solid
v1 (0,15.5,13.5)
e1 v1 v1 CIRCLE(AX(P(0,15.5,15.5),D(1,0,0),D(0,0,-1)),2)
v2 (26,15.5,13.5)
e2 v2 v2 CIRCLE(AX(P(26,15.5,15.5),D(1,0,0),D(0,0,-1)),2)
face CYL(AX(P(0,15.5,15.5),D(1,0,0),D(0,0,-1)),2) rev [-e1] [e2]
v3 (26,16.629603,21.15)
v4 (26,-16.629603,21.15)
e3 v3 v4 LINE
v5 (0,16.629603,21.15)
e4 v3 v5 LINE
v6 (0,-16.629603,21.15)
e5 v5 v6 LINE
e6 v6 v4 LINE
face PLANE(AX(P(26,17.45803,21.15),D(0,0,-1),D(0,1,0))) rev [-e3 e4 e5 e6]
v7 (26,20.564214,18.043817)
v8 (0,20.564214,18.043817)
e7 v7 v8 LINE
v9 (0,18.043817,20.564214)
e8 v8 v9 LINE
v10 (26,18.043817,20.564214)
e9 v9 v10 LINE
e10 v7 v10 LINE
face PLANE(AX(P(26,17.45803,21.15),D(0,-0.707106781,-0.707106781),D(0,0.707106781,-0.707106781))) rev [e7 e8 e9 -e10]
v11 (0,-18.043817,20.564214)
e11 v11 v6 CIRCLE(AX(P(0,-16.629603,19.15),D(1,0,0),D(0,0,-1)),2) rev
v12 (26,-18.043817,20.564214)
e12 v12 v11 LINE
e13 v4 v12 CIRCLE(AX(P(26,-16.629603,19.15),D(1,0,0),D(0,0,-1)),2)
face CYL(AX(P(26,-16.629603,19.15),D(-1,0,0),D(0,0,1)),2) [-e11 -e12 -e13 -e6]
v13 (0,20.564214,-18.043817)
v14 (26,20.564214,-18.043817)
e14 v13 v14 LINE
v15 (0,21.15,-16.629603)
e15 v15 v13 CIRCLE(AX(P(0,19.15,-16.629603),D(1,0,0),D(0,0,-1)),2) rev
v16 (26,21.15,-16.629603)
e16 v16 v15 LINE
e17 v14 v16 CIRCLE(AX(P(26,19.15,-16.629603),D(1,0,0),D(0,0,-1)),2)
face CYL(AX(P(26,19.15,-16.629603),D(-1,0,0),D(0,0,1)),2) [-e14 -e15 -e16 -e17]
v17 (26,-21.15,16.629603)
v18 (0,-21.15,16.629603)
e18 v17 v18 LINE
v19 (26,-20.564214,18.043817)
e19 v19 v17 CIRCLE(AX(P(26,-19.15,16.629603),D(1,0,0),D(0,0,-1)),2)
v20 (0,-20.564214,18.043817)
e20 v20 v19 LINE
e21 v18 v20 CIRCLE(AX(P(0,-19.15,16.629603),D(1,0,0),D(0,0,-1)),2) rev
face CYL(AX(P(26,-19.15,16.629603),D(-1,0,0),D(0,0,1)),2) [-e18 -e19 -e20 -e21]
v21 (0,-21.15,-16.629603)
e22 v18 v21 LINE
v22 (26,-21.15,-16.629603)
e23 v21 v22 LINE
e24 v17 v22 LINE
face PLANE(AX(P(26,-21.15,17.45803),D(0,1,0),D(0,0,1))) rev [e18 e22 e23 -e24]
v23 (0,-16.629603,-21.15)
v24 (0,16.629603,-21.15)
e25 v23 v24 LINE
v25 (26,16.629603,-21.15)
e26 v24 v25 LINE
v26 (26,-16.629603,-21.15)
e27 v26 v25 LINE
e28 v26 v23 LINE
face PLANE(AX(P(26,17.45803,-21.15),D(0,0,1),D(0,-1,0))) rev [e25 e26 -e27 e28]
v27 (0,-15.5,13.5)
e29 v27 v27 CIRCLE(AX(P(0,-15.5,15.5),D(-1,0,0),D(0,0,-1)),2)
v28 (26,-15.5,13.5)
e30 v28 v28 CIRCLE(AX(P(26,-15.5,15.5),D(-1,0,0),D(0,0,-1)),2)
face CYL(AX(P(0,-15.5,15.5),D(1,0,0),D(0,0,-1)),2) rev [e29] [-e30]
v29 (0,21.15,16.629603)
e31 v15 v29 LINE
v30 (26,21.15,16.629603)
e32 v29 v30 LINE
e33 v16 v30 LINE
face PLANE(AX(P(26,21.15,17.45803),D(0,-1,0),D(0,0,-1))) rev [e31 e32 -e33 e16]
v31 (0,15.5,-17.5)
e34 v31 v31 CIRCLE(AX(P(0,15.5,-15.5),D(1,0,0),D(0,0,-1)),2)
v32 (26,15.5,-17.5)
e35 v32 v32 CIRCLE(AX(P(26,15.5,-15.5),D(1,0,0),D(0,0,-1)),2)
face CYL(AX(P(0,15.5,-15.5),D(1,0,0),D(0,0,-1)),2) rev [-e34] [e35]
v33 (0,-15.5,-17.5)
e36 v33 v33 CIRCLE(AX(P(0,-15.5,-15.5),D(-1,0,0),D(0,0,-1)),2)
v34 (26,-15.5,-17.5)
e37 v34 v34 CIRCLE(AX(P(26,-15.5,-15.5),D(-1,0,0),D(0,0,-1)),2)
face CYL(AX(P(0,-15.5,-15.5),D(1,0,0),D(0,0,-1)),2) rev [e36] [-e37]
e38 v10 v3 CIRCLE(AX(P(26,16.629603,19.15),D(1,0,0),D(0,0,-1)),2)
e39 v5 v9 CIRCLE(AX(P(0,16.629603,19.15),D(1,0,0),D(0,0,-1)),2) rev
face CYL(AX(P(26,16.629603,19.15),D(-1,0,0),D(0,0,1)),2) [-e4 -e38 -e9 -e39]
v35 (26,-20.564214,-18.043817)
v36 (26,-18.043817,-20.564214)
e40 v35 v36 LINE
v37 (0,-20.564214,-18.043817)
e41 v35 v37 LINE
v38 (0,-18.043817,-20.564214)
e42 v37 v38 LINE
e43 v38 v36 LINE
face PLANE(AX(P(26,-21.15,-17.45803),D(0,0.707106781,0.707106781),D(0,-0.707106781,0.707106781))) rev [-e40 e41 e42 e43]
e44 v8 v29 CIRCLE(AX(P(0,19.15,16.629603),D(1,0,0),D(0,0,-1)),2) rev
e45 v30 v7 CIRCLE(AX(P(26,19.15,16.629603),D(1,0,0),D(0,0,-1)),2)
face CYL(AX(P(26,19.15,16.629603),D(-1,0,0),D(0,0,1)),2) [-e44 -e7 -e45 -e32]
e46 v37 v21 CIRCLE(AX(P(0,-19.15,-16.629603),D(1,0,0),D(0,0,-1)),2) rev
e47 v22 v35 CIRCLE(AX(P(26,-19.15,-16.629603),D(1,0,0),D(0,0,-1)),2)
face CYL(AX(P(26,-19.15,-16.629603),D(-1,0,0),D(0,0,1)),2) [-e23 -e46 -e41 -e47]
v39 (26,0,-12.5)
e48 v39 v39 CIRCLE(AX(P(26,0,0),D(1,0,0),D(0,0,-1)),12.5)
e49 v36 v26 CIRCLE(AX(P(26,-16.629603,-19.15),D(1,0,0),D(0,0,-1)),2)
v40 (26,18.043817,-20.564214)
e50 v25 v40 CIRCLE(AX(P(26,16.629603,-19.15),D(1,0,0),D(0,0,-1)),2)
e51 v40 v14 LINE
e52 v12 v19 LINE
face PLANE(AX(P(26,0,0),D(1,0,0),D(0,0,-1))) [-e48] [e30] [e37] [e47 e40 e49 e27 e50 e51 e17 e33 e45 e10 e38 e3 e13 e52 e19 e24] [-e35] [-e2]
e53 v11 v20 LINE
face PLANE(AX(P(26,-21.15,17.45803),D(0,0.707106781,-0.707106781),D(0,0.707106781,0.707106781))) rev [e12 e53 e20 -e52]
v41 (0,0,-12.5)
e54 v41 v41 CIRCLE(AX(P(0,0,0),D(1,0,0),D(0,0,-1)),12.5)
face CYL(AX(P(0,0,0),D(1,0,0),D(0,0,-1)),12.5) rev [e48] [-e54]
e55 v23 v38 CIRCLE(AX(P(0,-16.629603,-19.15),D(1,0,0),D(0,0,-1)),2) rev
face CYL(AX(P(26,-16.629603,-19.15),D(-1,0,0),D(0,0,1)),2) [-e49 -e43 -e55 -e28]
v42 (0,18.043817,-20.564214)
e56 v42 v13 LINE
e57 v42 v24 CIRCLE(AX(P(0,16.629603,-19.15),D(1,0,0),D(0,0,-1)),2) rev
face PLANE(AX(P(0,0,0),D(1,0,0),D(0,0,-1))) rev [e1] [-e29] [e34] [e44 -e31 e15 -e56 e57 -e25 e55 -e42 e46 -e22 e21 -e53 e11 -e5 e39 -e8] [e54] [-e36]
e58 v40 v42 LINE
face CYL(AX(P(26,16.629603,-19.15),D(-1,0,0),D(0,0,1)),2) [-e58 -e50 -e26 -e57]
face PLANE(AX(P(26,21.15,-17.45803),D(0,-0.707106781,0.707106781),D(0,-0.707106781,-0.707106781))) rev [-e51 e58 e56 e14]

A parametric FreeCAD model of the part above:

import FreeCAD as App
import Part
import Sketcher
from FreeCAD import Vector
Q = App.Units.Quantity


def edges_at(feature, points):
    """Names of the edges that pass closest to the given points."""
    edges = feature.Shape.Edges
    near = lambda p: min(range(len(edges)), key=lambda i: edges[i].distToShape(Part.Vertex(*p))[0])
    return sorted({f"Edge{near(p) + 1}" for p in points})


def add_polygon(sketch, points):
    """Adds a closed chain of lines whose ends are joined by coincident constraints."""
    first, n = sketch.GeometryCount, len(points)
    for a, b in zip(points, points[1:] + points[:1]):
        sketch.addGeometry(Part.LineSegment(App.Vector(*a, 0), App.Vector(*b, 0)), False)
    for i in range(n):
        sketch.addConstraint(Sketcher.Constraint("Coincident", first + i, 2, first + (i + 1) % n, 1))

doc = App.newDocument("Part")
params = doc.addObject("Spreadsheet::Sheet", "Params")
for row, (alias, value) in enumerate([
    ("pad1_length", "26 mm"),
    ("fillet_radius", "2 mm"),
    ("sketch2_diameter", "25 mm"),
    ("sketch3_diameter", "4 mm"),
    ("linearpattern_pitch", "31 mm"),
    ("sketch4_diameter", "4 mm"),
], start=1):
    params.set(f"A{row}", alias)
    params.set(f"B{row}", "=" + value)
    params.setAlias(f"B{row}", alias)

body = doc.addObject("PartDesign::Body", "Body")

# Sketch on YZ plane
sketch1 = doc.addObject("Sketcher::SketchObject", "Sketch")
body.addObject(sketch1)
sketch1.AttachmentSupport = (doc.YZ_Plane, [""])
sketch1.MapMode = "FlatFace"
add_polygon(sketch1, [(21, 17), (17, 21), (-17, 21), (-21, 17), (-21, -17), (-17, -21), (17, -21), (21, -17)])  # lines 0-7
sketch1.addConstraint(Sketcher.Constraint("Horizontal", 1))
sketch1.addConstraint(Sketcher.Constraint("Vertical", 3))
sketch1.addConstraint(Sketcher.Constraint("Horizontal", 5))
sketch1.addConstraint(Sketcher.Constraint("Vertical", 7))
sketch1.addConstraint(Sketcher.Constraint("Symmetric", 0, 2, 4, 2, -1, 1))
sketch1.addConstraint(Sketcher.Constraint("Symmetric", 2, 2, 6, 2, -1, 1))
sketch1.addConstraint(Sketcher.Constraint("Perpendicular", 0, 2))
sketch1.addConstraint(Sketcher.Constraint("Perpendicular", 2, 4))
sketch1.addConstraint(Sketcher.Constraint("Perpendicular", 4, 6))
sketch1.addConstraint(Sketcher.Constraint("Horizontal", 3, 2, 6, 2))
sketch1.addConstraint(Sketcher.Constraint("Vertical", 1, 2, 4, 2))
sketch1.addConstraint(Sketcher.Constraint("Equal", 5, 3))
sketch1.addConstraint(Sketcher.Constraint("DistanceY", 4, 2, 1, 2, Q("42.3 mm")))
sketch1.addConstraint(Sketcher.Constraint("DistanceX", 1, 2, 1, 1, Q("34.916061 mm")))
pad1 = doc.addObject("PartDesign::Pad", "Pad")
body.addObject(pad1)
pad1.Profile = sketch1
pad1.setExpression("Length", "Params.pad1_length")
doc.recompute()

fillet = doc.addObject("PartDesign::Fillet", "Fillet")
body.addObject(fillet)
fillet.Base = (pad1, edges_at(pad1, [
    (13, 17.458, 21.15),
    (13, 21.15, 17.458),
    (13, 21.15, -17.458),
    (13, 17.458, -21.15),
    (13, -17.458, -21.15),
    (13, -21.15, -17.458),
    (13, -21.15, 17.458),
    (13, -17.458, 21.15),
]))
fillet.setExpression("Radius", "Params.fillet_radius")

# Sketch on YZ plane
sketch2 = doc.addObject("Sketcher::SketchObject", "Sketch001")
body.addObject(sketch2)
sketch2.AttachmentSupport = (doc.YZ_Plane, [""])
sketch2.MapMode = "FlatFace"
sketch2.AttachmentOffset = App.Placement(Vector(0, 0, 26), App.Rotation())
sketch2.addGeometry(Part.Circle(Vector(0, 0, 0), Vector(0, 0, 1), 12), False)
sketch2.addConstraint(Sketcher.Constraint("Coincident", 0, 3, -1, 1))
sketch2.addConstraint(Sketcher.Constraint("Diameter", 0, Q("25 mm")))
sketch2.setExpression("Constraints[1]", "Params.sketch2_diameter")
pocket1 = doc.addObject("PartDesign::Pocket", "Pocket")
body.addObject(pocket1)
pocket1.Profile = sketch2
pocket1.Type = "ThroughAll"

# Sketch on YZ plane
sketch3 = doc.addObject("Sketcher::SketchObject", "Sketch002")
body.addObject(sketch3)
sketch3.AttachmentSupport = (doc.YZ_Plane, [""])
sketch3.MapMode = "FlatFace"
sketch3.AttachmentOffset = App.Placement(Vector(0, 0, 26), App.Rotation())
sketch3.addGeometry(Part.Circle(Vector(15.5, 15.5, 0), Vector(0, 0, 1), 2), False)
sketch3.addConstraint(Sketcher.Constraint("Diameter", 0, Q("4 mm")))
sketch3.addConstraint(Sketcher.Constraint("DistanceX", -1, 1, 0, 3, Q("15.5 mm")))
sketch3.addConstraint(Sketcher.Constraint("DistanceY", -1, 1, 0, 3, Q("15.5 mm")))
sketch3.setExpression("Constraints[0]", "Params.sketch3_diameter")
pocket2 = doc.addObject("PartDesign::Pocket", "Pocket001")
body.addObject(pocket2)
pocket2.Profile = sketch3
pocket2.Type = "ThroughAll"
doc.recompute()

linearpattern = doc.addObject("PartDesign::LinearPattern", "LinearPattern")
body.addObject(linearpattern)
linearpattern.Originals = [pocket2]
linearpattern.Direction = (doc.Z_Axis, [""])
linearpattern.Mode = "offset"
linearpattern.setExpression("Offset", "Params.linearpattern_pitch")
linearpattern.Occurrences = 2
linearpattern.Reversed = True
body.Tip = linearpattern
doc.recompute()

mirrored = doc.addObject("PartDesign::Mirrored", "Mirrored")
body.addObject(mirrored)
mirrored.Originals = [pocket2]
mirrored.MirrorPlane = (doc.XZ_Plane, [""])
body.Tip = mirrored

# Sketch on YZ plane
sketch4 = doc.addObject("Sketcher::SketchObject", "Sketch003")
body.addObject(sketch4)
sketch4.AttachmentSupport = (doc.YZ_Plane, [""])
sketch4.MapMode = "FlatFace"
sketch4.AttachmentOffset = App.Placement(Vector(0, 0, 26), App.Rotation())
sketch4.addGeometry(Part.Circle(Vector(-15.5, -15.5, 0), Vector(0, 0, 1), 2), False)
sketch4.addConstraint(Sketcher.Constraint("Diameter", 0, Q("4 mm")))
sketch4.addConstraint(Sketcher.Constraint("DistanceX", 0, 3, -1, 1, Q("15.5 mm")))
sketch4.addConstraint(Sketcher.Constraint("DistanceY", 0, 3, -1, 1, Q("15.5 mm")))
sketch4.setExpression("Constraints[0]", "Params.sketch4_diameter")
pocket3 = doc.addObject("PartDesign::Pocket", "Pocket002")
body.addObject(pocket3)
pocket3.Profile = sketch4
pocket3.Type = "ThroughAll"

doc.recompute()
